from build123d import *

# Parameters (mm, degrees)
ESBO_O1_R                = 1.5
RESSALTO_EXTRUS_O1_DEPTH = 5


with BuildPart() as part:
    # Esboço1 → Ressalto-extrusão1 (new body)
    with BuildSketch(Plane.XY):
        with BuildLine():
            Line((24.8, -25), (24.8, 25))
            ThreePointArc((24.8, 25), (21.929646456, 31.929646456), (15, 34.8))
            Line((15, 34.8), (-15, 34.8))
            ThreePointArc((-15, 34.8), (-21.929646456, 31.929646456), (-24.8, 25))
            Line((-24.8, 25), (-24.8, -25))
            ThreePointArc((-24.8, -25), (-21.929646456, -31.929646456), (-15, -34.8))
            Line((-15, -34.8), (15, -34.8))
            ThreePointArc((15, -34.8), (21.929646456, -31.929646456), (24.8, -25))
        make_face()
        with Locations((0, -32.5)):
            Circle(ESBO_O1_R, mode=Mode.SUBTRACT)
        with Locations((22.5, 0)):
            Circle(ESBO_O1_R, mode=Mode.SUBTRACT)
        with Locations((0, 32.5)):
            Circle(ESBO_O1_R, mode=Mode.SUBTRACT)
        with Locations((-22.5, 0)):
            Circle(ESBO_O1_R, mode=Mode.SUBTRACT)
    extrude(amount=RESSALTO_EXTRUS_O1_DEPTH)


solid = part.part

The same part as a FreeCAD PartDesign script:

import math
import FreeCAD as App
import Part
import Sketcher

V = App.Vector
Q = App.Units.Quantity

doc = App.newDocument("Part")
body = doc.addObject("PartDesign::Body", "Body")

sketch1 = doc.addObject("Sketcher::SketchObject", "Sketch")
body.addObject(sketch1)
sketch1.AttachmentSupport = (doc.XY_Plane, [""])
sketch1.MapMode = "FlatFace"
sketch1.addGeometry(Part.LineSegment(V(24.8, -25, 0), V(24.8, 25, 0)), False)
sketch1.addGeometry(Part.ArcOfCircle(Part.Circle(V(15, 25, 0), V(0, 0, 1), 9.8), math.radians(0), math.radians(90)), False)
sketch1.addGeometry(Part.LineSegment(V(15, 34.8, 0), V(-15, 34.8, 0)), False)
sketch1.addGeometry(Part.ArcOfCircle(Part.Circle(V(-15, 25, 0), V(0, 0, 1), 9.8), math.radians(90), math.radians(180)), False)
sketch1.addGeometry(Part.LineSegment(V(-24.8, 25, 0), V(-24.8, -25, 0)), False)
sketch1.addGeometry(Part.ArcOfCircle(Part.Circle(V(-15, -25, 0), V(0, 0, 1), 9.8), math.radians(180), math.radians(270)), False)
sketch1.addGeometry(Part.LineSegment(V(-15, -34.8, 0), V(15, -34.8, 0)), False)
sketch1.addGeometry(Part.ArcOfCircle(Part.Circle(V(15, -25, 0), V(0, 0, 1), 9.8), math.radians(-90), math.radians(0)), False)
sketch1.addGeometry(Part.Circle(V(0, -32.5, 0), V(0, 0, 1), 1.5), False)
sketch1.addGeometry(Part.Circle(V(-22.5, 0, 0), V(0, 0, 1), 1.5), False)
sketch1.addGeometry(Part.Circle(V(22.5, 0, 0), V(0, 0, 1), 1.5), False)
sketch1.addGeometry(Part.Circle(V(0, 32.5, 0), V(0, 0, 1), 1.5), False)
sketch1.addConstraint(Sketcher.Constraint("Tangent", 0, 2, 1, 1))
sketch1.addConstraint(Sketcher.Constraint("Tangent", 1, 2, 2, 1))
sketch1.addConstraint(Sketcher.Constraint("Tangent", 2, 2, 3, 1))
sketch1.addConstraint(Sketcher.Constraint("Tangent", 3, 2, 4, 1))
sketch1.addConstraint(Sketcher.Constraint("Tangent", 4, 2, 5, 1))
sketch1.addConstraint(Sketcher.Constraint("Tangent", 5, 2, 6, 1))
sketch1.addConstraint(Sketcher.Constraint("Tangent", 6, 2, 7, 1))
sketch1.addConstraint(Sketcher.Constraint("Tangent", 7, 2, 0, 1))
sketch1.addConstraint(Sketcher.Constraint("Vertical", 0))
sketch1.addConstraint(Sketcher.Constraint("Horizontal", 2))
sketch1.addConstraint(Sketcher.Constraint("Vertical", 4))
sketch1.addConstraint(Sketcher.Constraint("Horizontal", 6))
sketch1.addConstraint(Sketcher.Constraint("Equal", 1, 3))
sketch1.addConstraint(Sketcher.Constraint("Equal", 3, 5))
sketch1.addConstraint(Sketcher.Constraint("Equal", 5, 7))
sketch1.addConstraint(Sketcher.Constraint("Equal", 8, 9))
sketch1.addConstraint(Sketcher.Constraint("Equal", 9, 10))
sketch1.addConstraint(Sketcher.Constraint("Equal", 10, 11))
sketch1.addConstraint(Sketcher.Constraint("Symmetric", 1, 3, 5, 3, -1, 1))
sketch1.addConstraint(Sketcher.Constraint("Symmetric", 9, 3, 10, 3, -1, 1))
sketch1.addConstraint(Sketcher.Constraint("Symmetric", 8, 3, 11, 3, -1, 1))
sketch1.addConstraint(Sketcher.Constraint("PointOnObject", 8, 3, -2))
sketch1.addConstraint(Sketcher.Constraint("PointOnObject", 9, 3, -1))
sketch1.addConstraint(Sketcher.Constraint("Diameter", 8, Q("3 mm")))
sketch1.addConstraint(Sketcher.Constraint("Radius", 1, Q("9.8 mm")))
sketch1.addConstraint(Sketcher.Constraint("DistanceX", 2, 2, 2, 1, Q("30 mm")))
sketch1.addConstraint(Sketcher.Constraint("DistanceY", 0, 1, 0, 2, Q("50 mm")))
sketch1.addConstraint(Sketcher.Constraint("DistanceX", 9, 3, 10, 3, Q("45 mm")))
sketch1.addConstraint(Sketcher.Constraint("DistanceY", 8, 3, -1, 1, Q("32.5 mm")))
pad1 = doc.addObject("PartDesign::Pad", "Pad")
body.addObject(pad1)
pad1.Profile = sketch1
pad1.Length = 5

doc.recompute()
